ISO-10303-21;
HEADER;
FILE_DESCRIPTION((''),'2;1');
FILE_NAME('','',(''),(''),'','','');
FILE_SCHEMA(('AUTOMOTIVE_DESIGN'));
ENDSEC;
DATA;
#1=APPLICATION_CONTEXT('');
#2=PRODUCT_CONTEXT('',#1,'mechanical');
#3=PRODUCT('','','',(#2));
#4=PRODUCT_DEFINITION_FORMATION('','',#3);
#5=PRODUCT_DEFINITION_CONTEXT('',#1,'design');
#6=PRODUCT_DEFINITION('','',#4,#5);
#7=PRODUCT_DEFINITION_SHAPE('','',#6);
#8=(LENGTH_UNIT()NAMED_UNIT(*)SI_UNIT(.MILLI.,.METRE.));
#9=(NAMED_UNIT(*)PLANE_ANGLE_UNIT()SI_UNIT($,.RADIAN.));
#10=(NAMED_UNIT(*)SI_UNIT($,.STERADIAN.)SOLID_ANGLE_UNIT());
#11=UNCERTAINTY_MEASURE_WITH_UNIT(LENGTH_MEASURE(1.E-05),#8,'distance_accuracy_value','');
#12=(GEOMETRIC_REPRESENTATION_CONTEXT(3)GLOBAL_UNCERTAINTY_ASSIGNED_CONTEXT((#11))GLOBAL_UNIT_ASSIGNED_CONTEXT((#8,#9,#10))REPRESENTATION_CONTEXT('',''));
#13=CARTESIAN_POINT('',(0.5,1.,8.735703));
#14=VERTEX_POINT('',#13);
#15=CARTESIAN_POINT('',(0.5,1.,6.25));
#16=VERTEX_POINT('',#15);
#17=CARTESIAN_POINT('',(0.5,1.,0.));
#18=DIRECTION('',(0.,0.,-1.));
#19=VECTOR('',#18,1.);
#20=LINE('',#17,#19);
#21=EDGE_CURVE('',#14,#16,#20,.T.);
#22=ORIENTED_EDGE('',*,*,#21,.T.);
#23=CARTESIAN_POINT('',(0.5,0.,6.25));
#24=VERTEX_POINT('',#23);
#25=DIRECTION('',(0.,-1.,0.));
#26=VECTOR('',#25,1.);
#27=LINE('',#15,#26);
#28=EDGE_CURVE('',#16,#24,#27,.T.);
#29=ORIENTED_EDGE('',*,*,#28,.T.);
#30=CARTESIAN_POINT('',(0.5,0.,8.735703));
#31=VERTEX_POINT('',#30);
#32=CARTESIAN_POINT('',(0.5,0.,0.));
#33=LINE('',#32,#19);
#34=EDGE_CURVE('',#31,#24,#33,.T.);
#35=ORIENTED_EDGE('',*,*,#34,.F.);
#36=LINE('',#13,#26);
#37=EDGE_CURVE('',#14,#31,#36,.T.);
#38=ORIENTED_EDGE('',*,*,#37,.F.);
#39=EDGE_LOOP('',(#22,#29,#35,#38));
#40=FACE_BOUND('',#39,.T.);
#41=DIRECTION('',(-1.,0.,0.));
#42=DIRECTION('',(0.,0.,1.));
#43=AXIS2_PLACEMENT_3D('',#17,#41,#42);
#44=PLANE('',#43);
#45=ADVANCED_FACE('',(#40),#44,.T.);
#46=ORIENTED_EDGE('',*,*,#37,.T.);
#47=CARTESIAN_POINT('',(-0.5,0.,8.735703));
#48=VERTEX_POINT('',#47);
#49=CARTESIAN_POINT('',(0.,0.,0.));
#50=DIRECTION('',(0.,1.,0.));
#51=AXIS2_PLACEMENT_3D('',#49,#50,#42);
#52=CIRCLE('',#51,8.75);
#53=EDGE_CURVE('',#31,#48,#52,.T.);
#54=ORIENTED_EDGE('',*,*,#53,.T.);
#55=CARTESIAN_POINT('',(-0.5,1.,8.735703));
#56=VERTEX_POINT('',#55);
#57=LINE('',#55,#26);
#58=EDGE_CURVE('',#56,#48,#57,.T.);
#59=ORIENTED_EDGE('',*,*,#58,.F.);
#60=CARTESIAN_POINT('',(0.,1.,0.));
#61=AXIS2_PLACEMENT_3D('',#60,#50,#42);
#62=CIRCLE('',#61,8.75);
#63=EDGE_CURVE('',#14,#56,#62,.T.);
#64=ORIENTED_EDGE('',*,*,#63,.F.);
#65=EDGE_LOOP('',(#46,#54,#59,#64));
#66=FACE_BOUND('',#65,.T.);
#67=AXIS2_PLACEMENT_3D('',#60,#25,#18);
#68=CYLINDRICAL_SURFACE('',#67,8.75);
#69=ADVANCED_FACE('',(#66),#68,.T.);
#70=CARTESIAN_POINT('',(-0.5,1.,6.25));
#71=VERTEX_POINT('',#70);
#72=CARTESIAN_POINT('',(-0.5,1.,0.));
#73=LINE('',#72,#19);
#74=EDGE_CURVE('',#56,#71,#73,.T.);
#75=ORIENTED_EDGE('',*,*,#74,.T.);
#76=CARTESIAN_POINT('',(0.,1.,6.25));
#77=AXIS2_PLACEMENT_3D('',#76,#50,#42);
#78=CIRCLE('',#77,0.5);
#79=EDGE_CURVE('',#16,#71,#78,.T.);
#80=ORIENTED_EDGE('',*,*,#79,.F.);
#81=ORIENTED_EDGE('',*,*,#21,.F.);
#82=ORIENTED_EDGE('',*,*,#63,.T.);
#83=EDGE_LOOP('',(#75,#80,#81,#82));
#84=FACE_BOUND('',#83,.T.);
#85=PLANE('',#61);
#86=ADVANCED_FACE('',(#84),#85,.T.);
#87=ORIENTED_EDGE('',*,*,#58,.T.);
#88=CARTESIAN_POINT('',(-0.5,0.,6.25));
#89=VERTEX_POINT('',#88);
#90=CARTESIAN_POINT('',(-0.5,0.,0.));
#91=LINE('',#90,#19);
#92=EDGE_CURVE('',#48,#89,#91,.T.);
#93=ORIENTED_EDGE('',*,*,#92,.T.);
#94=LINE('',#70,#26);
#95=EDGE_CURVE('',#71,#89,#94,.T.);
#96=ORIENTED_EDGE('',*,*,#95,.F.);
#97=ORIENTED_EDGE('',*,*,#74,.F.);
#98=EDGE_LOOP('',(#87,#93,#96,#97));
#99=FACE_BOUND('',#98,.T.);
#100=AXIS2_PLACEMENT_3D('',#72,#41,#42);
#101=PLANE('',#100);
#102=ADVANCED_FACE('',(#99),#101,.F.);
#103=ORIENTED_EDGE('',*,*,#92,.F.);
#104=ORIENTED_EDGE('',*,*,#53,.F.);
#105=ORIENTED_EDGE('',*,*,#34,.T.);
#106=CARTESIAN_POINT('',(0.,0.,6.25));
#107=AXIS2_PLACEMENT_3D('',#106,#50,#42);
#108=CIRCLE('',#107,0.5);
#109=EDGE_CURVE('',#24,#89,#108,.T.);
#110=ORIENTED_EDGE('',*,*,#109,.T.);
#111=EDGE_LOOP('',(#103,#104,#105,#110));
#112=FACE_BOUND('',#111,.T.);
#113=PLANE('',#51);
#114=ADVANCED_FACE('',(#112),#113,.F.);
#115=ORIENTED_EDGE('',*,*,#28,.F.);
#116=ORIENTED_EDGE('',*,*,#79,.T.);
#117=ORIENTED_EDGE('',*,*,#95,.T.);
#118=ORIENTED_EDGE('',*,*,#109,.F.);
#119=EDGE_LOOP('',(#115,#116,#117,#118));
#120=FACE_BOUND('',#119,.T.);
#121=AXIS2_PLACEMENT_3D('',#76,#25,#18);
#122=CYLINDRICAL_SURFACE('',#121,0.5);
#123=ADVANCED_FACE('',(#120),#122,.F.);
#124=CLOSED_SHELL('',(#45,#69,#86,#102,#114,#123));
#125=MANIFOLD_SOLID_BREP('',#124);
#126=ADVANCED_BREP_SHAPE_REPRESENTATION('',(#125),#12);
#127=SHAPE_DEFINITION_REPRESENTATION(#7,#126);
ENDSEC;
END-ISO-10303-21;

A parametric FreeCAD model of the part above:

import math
import FreeCAD as App
import Part
import Sketcher
from FreeCAD import Vector

doc = App.newDocument("Part")
body = doc.addObject("PartDesign::Body", "Body")

sketch1 = body.newObject("Sketcher::SketchObject", "Sketch")
sketch1.AttachmentSupport = (doc.getObject("XZ_Plane"), [""])
sketch1.MapMode = "FlatFace"
sketch1.addGeometry(Part.ArcOfCircle(Part.Circle(Vector(0, 0, 0), Vector(0, 0, 1), 8.8), math.radians(93), math.radians(360)), False)
sketch1.addGeometry(Part.LineSegment(Vector(-0.5, 8.7, 0), Vector(-0.5, 6.2, 0)), False)
sketch1.addGeometry(Part.ArcOfCircle(Part.Circle(Vector(0, 6.2, 0), Vector(0, 0, 1), 0.5), math.radians(180), math.radians(360)), False)
sketch1.addGeometry(Part.LineSegment(Vector(0.5, 6.2, 0), Vector(0.5, 8.7, 0)), False)
sketch1.addGeometry(Part.ArcOfCircle(Part.Circle(Vector(0, 0, 0), Vector(0, 0, 1), 8.8), math.radians(0), math.radians(87)), False)
sketch1.addConstraint(Sketcher.Constraint("Coincident", 0, 1, 1, 1))
sketch1.addConstraint(Sketcher.Constraint("Tangent", 1, 2, 2, 1))
sketch1.addConstraint(Sketcher.Constraint("Tangent", 2, 2, 3, 1))
sketch1.addConstraint(Sketcher.Constraint("Coincident", 3, 2, 4, 2))
sketch1.addConstraint(Sketcher.Constraint("Tangent", 4, 1, 0, 2))
sketch1.addConstraint(Sketcher.Constraint("Vertical", 1))
sketch1.addConstraint(Sketcher.Constraint("Vertical", 3))
sketch1.addConstraint(Sketcher.Constraint("Coincident", 0, 3, -1, 1))
sketch1.addConstraint(Sketcher.Constraint("Equal", 0, 4))
sketch1.addConstraint(Sketcher.Constraint("PointOnObject", 2, 3, -2))
sketch1.addConstraint(Sketcher.Constraint("PointOnObject", 4, 1, -1))
sketch1.addConstraint(Sketcher.Constraint("Radius", 2, 0.5))
sketch1.addConstraint(Sketcher.Constraint("Radius", 0, 8.75))
sketch1.addConstraint(Sketcher.Constraint("DistanceY", -1, 1, 2, 3, 6.25))
pad1 = body.newObject("PartDesign::Pad", "Pad")
pad1.Profile = sketch1
pad1.Length = 1
pad1.Reversed = True

doc.recompute()
